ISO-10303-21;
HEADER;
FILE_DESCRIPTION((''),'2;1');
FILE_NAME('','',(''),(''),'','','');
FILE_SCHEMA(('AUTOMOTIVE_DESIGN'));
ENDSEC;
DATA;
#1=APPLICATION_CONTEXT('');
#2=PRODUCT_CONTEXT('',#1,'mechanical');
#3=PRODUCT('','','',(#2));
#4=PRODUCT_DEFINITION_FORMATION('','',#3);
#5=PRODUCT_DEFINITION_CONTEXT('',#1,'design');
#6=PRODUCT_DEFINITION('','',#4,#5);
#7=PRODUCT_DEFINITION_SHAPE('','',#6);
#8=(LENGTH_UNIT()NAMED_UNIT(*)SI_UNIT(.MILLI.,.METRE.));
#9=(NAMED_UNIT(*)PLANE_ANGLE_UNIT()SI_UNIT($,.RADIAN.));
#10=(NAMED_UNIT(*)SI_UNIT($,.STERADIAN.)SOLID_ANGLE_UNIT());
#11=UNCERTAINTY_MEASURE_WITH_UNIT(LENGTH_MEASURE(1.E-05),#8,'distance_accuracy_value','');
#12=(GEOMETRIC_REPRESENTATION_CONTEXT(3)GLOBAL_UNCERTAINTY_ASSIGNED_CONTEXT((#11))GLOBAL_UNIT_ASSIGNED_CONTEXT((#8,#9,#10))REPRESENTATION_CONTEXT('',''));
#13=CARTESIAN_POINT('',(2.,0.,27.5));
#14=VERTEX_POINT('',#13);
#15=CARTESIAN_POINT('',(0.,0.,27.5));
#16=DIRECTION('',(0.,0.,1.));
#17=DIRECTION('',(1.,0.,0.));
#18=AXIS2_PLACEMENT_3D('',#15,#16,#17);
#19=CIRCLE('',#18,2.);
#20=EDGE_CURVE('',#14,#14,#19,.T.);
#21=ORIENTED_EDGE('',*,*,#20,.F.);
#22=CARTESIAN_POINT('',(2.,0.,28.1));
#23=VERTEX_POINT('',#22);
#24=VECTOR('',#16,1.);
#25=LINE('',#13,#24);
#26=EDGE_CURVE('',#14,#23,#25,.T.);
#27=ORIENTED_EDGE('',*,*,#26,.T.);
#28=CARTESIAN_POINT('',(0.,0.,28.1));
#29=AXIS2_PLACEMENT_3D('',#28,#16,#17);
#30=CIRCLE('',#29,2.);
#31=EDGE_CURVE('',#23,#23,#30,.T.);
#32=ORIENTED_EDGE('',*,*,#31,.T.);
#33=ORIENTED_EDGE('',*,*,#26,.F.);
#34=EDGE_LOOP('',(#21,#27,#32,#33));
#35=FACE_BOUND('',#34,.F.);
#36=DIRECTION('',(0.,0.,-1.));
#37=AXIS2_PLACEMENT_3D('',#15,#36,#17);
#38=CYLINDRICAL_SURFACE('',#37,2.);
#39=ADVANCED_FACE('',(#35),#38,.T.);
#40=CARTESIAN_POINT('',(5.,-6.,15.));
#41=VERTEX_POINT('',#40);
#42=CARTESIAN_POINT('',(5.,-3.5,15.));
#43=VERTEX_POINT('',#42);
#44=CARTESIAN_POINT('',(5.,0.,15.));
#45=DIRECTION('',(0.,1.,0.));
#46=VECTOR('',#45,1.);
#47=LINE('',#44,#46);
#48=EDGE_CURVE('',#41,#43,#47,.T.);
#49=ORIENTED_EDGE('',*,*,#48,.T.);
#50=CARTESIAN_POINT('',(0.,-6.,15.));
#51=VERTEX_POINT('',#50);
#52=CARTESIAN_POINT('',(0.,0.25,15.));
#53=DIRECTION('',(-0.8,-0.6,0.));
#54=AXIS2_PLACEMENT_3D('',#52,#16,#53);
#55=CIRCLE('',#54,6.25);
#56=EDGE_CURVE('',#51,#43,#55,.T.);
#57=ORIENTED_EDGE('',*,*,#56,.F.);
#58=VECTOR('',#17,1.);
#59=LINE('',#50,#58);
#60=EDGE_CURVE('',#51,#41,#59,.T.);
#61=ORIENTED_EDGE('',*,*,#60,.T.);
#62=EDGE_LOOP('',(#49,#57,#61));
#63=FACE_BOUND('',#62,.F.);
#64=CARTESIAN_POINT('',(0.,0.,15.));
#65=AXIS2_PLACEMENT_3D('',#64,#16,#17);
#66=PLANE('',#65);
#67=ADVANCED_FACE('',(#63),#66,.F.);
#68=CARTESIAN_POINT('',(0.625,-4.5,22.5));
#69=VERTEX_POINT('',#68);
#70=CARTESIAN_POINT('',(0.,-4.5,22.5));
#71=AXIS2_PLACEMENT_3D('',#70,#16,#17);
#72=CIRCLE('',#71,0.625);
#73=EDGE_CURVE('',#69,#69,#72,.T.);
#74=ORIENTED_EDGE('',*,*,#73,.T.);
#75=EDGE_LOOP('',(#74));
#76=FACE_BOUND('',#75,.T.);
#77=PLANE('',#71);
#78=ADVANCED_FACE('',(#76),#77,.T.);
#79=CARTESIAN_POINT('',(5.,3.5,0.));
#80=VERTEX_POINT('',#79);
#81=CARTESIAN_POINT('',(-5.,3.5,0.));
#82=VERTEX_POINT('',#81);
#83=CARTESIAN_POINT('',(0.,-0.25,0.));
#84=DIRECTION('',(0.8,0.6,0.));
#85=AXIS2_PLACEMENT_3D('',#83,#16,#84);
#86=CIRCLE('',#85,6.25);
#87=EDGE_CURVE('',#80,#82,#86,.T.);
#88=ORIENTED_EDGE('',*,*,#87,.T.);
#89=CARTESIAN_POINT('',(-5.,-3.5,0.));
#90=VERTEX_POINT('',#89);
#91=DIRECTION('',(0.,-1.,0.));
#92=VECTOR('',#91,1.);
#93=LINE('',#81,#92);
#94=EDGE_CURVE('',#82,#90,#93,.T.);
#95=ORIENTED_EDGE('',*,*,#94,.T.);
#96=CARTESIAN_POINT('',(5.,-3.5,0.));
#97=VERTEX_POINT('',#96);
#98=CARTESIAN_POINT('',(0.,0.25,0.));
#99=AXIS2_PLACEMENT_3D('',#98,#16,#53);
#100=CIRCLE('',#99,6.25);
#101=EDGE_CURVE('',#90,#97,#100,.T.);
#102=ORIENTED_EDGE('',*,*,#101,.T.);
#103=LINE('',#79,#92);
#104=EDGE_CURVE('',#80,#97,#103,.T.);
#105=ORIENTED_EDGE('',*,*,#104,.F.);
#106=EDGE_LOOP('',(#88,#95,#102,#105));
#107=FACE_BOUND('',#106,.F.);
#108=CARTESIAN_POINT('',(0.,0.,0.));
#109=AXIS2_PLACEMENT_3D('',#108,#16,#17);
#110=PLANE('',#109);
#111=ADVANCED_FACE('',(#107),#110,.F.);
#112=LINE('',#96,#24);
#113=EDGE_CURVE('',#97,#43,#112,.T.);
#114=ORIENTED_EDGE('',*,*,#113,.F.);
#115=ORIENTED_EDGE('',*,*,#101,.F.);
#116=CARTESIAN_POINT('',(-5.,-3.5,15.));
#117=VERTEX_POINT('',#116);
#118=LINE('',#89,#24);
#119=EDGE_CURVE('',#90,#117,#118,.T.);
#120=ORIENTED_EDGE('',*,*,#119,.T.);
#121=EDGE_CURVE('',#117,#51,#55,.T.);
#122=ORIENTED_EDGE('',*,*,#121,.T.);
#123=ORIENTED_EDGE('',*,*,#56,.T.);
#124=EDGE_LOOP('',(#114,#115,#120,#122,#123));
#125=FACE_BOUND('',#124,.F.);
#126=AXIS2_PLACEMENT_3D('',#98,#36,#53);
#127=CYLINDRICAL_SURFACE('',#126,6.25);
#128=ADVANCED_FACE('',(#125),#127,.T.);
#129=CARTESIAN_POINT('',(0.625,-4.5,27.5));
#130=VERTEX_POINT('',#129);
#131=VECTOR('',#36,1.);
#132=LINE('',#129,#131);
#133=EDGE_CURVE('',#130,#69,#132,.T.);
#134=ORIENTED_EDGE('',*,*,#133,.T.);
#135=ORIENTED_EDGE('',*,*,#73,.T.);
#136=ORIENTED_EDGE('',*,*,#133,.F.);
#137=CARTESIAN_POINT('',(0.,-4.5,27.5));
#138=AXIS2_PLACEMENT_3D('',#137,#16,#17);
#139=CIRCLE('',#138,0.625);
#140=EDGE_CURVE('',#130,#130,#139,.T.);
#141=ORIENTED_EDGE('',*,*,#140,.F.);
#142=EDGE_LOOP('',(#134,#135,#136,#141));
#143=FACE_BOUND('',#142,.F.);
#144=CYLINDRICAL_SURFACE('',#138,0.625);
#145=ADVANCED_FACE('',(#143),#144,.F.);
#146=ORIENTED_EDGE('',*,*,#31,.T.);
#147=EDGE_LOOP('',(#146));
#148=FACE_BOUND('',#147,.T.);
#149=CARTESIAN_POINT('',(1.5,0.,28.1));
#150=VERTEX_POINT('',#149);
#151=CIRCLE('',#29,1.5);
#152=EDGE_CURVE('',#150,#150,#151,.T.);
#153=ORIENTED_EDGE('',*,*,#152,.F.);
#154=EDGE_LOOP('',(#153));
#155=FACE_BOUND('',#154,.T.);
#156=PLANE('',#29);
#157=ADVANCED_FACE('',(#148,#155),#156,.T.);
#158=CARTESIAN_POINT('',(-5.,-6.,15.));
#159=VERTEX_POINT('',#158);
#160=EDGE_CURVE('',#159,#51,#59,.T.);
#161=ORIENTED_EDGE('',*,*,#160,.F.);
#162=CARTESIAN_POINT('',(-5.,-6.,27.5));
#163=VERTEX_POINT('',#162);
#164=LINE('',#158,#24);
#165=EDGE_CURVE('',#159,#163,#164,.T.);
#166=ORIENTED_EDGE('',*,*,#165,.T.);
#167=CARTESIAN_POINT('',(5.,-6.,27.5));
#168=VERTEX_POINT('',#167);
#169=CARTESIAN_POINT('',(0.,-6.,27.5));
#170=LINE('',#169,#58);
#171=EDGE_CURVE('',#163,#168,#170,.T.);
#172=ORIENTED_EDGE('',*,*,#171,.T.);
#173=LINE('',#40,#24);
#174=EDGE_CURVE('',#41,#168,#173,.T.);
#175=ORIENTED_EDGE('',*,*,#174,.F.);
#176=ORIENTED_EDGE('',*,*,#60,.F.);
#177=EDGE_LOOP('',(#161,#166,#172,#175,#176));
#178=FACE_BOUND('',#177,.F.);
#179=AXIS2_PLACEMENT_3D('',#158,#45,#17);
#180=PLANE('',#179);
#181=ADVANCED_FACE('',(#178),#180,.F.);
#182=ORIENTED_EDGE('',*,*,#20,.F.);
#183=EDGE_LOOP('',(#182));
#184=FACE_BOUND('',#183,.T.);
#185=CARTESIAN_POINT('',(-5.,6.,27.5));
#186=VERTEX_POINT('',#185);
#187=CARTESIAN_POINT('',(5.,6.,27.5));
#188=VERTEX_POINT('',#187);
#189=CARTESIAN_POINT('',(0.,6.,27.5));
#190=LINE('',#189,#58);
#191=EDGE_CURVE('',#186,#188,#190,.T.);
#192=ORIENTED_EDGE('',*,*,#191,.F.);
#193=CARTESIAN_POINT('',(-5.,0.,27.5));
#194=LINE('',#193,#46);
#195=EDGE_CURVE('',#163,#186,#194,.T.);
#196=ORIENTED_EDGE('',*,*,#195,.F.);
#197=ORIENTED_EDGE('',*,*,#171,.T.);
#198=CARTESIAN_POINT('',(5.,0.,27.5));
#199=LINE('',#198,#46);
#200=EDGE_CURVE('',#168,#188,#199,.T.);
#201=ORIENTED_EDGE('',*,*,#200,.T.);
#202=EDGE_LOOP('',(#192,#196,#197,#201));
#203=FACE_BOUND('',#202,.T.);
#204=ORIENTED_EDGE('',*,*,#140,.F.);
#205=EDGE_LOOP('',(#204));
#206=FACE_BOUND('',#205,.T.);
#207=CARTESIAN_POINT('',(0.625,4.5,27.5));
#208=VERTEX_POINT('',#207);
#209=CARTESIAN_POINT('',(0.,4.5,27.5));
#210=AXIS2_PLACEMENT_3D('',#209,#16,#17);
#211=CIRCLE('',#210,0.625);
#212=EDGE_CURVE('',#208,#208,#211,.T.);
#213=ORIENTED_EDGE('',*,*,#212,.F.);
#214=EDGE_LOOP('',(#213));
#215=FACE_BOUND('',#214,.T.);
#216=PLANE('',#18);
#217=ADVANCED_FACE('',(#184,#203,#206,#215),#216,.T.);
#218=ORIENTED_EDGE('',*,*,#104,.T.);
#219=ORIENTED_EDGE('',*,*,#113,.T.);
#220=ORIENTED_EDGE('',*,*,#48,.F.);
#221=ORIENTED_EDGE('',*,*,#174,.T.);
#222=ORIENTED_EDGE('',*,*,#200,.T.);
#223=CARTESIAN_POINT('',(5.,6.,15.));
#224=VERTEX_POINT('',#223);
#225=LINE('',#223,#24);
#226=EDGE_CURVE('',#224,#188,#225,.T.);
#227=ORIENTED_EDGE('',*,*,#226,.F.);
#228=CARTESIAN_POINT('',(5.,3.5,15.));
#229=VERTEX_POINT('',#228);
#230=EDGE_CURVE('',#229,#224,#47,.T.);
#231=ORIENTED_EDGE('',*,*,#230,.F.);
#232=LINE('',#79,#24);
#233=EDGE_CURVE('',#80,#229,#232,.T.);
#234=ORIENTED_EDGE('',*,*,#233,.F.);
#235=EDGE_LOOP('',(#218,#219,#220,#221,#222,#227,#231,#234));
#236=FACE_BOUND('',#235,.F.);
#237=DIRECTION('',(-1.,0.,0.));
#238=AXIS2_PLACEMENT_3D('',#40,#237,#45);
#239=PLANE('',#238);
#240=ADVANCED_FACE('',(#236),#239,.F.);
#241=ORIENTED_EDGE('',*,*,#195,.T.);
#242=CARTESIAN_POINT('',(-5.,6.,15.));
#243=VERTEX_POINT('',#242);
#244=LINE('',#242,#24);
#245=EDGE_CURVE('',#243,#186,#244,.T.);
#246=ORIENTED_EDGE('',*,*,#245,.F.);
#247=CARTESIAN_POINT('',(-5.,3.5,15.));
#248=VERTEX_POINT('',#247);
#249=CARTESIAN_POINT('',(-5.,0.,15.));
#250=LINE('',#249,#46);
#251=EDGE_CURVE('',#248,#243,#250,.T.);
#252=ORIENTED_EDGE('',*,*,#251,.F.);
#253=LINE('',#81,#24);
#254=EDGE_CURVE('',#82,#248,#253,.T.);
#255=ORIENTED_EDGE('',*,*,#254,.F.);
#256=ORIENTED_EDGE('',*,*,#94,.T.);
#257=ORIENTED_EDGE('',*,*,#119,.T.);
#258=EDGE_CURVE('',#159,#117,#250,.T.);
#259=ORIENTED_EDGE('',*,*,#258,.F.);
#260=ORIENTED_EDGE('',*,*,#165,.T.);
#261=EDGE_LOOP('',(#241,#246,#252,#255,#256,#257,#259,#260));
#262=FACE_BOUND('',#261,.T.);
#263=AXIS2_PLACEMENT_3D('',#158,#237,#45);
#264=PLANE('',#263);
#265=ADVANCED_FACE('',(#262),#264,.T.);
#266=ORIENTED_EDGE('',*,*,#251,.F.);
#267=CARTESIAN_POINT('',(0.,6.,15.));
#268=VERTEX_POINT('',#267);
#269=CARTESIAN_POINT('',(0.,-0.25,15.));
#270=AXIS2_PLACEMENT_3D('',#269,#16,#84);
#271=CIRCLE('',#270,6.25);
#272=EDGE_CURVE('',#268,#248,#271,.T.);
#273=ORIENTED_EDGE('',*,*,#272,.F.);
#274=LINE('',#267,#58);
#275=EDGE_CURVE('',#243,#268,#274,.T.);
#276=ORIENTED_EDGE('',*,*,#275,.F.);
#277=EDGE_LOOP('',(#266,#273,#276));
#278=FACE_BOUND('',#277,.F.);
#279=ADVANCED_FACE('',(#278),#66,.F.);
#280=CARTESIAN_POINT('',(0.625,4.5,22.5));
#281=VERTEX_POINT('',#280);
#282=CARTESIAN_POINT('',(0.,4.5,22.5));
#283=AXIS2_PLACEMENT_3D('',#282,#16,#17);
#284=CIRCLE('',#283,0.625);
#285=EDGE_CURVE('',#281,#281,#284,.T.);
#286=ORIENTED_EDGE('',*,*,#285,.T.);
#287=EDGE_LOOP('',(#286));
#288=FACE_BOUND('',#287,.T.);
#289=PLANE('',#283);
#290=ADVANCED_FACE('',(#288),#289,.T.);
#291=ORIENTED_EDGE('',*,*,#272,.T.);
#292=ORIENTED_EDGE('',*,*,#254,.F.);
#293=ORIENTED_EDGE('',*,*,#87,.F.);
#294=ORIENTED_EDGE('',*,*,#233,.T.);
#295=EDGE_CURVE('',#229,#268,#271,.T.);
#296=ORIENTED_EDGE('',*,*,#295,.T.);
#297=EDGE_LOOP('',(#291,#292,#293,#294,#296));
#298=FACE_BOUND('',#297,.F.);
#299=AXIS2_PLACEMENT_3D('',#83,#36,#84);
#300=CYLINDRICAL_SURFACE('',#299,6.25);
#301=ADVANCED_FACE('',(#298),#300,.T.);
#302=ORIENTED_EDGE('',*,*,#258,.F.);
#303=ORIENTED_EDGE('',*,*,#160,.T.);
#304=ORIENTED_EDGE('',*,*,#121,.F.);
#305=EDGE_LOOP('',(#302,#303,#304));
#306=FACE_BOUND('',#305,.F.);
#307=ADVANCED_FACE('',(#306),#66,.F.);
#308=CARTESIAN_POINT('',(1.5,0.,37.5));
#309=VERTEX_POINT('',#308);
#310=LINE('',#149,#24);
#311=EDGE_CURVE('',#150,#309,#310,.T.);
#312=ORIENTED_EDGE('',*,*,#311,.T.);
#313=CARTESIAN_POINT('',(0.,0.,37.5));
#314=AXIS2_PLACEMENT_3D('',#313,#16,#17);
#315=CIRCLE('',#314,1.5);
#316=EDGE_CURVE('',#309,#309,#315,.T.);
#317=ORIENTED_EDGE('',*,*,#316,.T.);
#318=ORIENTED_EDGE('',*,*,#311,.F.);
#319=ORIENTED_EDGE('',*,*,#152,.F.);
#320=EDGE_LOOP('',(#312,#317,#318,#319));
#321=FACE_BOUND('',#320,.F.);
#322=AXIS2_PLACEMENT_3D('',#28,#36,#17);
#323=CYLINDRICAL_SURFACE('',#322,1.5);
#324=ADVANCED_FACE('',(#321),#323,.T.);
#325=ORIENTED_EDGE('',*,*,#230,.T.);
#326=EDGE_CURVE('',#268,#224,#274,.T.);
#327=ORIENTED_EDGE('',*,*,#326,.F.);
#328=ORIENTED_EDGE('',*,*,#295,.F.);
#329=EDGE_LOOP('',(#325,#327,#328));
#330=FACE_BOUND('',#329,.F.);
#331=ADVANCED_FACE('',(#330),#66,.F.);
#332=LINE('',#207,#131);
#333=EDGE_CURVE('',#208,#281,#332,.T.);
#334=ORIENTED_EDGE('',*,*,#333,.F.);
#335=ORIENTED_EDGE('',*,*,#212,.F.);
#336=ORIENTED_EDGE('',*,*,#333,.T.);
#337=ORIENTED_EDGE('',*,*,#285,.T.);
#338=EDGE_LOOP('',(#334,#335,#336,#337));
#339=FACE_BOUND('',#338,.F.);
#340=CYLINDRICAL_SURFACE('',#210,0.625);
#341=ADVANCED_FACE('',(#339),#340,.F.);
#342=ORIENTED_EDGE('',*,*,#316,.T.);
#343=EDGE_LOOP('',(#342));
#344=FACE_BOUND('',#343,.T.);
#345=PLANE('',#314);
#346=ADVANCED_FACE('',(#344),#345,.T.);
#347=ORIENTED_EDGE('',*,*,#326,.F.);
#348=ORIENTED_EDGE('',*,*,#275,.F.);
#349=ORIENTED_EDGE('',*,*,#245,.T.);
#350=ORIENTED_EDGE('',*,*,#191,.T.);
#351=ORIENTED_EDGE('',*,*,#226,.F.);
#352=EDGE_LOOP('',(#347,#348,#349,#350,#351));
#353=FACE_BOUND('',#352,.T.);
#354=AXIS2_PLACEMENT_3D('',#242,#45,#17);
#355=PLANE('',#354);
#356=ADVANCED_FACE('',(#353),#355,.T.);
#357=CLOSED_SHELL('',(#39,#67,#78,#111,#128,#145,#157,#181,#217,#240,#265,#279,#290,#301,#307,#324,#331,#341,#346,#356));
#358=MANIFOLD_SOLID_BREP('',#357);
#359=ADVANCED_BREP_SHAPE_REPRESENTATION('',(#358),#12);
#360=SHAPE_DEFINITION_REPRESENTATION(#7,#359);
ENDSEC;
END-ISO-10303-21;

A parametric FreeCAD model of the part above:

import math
import FreeCAD as App
import Part
import Sketcher

doc = App.newDocument("Part")
params = doc.addObject("Spreadsheet::Sheet", "Params")
for row, (alias, value) in enumerate([
    ("sketch1_height", "7 mm"),
    ("sketch1_radius", "6.25 mm"),
    ("pad1_length", "15 mm"),
    ("sketch2_width", "10 mm"),
    ("sketch2_height", "12 mm"),
    ("pad2_length", "12.5 mm"),
    ("sketch3_diameter", "1.25 mm"),
    ("pocket1_length", "5 mm"),
    ("sketch4_diameter", "4 mm"),
    ("pad3_length", "0.6 mm"),
    ("sketch5_diameter", "3 mm"),
    ("pad4_length", "9.4 mm"),
], start=1):
    params.set(f"A{row}", alias)
    params.set(f"B{row}", "=" + value)
    params.setAlias(f"B{row}", alias)

body = doc.addObject("PartDesign::Body", "Body")

# Sketch on XY plane
sketch1 = doc.addObject("Sketcher::SketchObject", "Sketch")
body.addObject(sketch1)
sketch1.AttachmentSupport = (doc.XY_Plane, [""])
sketch1.MapMode = "FlatFace"
sketch1.addGeometry(Part.LineSegment(App.Vector(-5, 4, 0), App.Vector(-5, -4, 0)), False)
sketch1.addGeometry(Part.ArcOfCircle(Part.Circle(App.Vector(0, 0, 0), App.Vector(0, 0, 1), 6), math.radians(-143), math.radians(-37)), False)
sketch1.addGeometry(Part.LineSegment(App.Vector(5, -4, 0), App.Vector(5, 4, 0)), False)
sketch1.addGeometry(Part.ArcOfCircle(Part.Circle(App.Vector(0, 0, 0), App.Vector(0, 0, 1), 6), math.radians(37), math.radians(143)), False)
sketch1.addConstraint(Sketcher.Constraint("Coincident", 0, 2, 1, 1))
sketch1.addConstraint(Sketcher.Constraint("Coincident", 1, 2, 2, 1))
sketch1.addConstraint(Sketcher.Constraint("Coincident", 2, 2, 3, 1))
sketch1.addConstraint(Sketcher.Constraint("Coincident", 3, 2, 0, 1))
sketch1.addConstraint(Sketcher.Constraint("Vertical", 0))
sketch1.addConstraint(Sketcher.Constraint("Vertical", 2))
sketch1.addConstraint(Sketcher.Constraint("Equal", 1, 3))
sketch1.addConstraint(Sketcher.Constraint("Symmetric", 1, 3, 3, 3, -1, 1))
sketch1.addConstraint(Sketcher.Constraint("Symmetric", 0, 2, 1, 2, -2))
sketch1.addConstraint(Sketcher.Constraint("DistanceY", 0, 2, 0, 1, 7.0))
sketch1.addConstraint(Sketcher.Constraint("Radius", 1, 6.25))
sketch1.addConstraint(Sketcher.Constraint("DistanceX", 0, 2, -1, 1, 5.0))
sketch1.setExpression("Constraints[9]", "Params.sketch1_height")
sketch1.setExpression("Constraints[10]", "Params.sketch1_radius")
pad1 = doc.addObject("PartDesign::Pad", "Pad")
body.addObject(pad1)
pad1.Profile = sketch1
pad1.setExpression("Length", "Params.pad1_length")

# Sketch on XY plane
sketch2 = doc.addObject("Sketcher::SketchObject", "Sketch001")
body.addObject(sketch2)
sketch2.AttachmentSupport = (doc.XY_Plane, [""])
sketch2.MapMode = "FlatFace"
sketch2.AttachmentOffset = App.Placement(App.Vector(0, 0, 15), App.Rotation())
sketch2.addGeometry(Part.LineSegment(App.Vector(-5, 6, 0), App.Vector(-5, -6, 0)), False)
sketch2.addGeometry(Part.LineSegment(App.Vector(-5, -6, 0), App.Vector(5, -6, 0)), False)
sketch2.addGeometry(Part.LineSegment(App.Vector(5, -6, 0), App.Vector(5, 6, 0)), False)
sketch2.addGeometry(Part.LineSegment(App.Vector(5, 6, 0), App.Vector(-5, 6, 0)), False)
sketch2.addConstraint(Sketcher.Constraint("Coincident", 0, 2, 1, 1))
sketch2.addConstraint(Sketcher.Constraint("Coincident", 1, 2, 2, 1))
sketch2.addConstraint(Sketcher.Constraint("Coincident", 2, 2, 3, 1))
sketch2.addConstraint(Sketcher.Constraint("Coincident", 3, 2, 0, 1))
sketch2.addConstraint(Sketcher.Constraint("Vertical", 0))
sketch2.addConstraint(Sketcher.Constraint("Horizontal", 1))
sketch2.addConstraint(Sketcher.Constraint("Vertical", 2))
sketch2.addConstraint(Sketcher.Constraint("Horizontal", 3))
sketch2.addConstraint(Sketcher.Constraint("Symmetric", 0, 2, 2, 2, -1, 1))
sketch2.addConstraint(Sketcher.Constraint("DistanceX", 1, 1, 1, 2, 10.0))
sketch2.addConstraint(Sketcher.Constraint("DistanceY", 0, 2, 0, 1, 12.0))
sketch2.setExpression("Constraints[9]", "Params.sketch2_width")
sketch2.setExpression("Constraints[10]", "Params.sketch2_height")
pad2 = doc.addObject("PartDesign::Pad", "Pad001")
body.addObject(pad2)
pad2.Profile = sketch2
pad2.setExpression("Length", "Params.pad2_length")

# Sketch on XY plane
sketch3 = doc.addObject("Sketcher::SketchObject", "Sketch002")
body.addObject(sketch3)
sketch3.AttachmentSupport = (doc.XY_Plane, [""])
sketch3.MapMode = "FlatFace"
sketch3.AttachmentOffset = App.Placement(App.Vector(0, 0, 27.5), App.Rotation())
sketch3.addGeometry(Part.Circle(App.Vector(0, -4.5, 0), App.Vector(0, 0, 1), 0.6), False)
sketch3.addGeometry(Part.Circle(App.Vector(0, 4.5, 0), App.Vector(0, 0, 1), 0.6), False)
sketch3.addConstraint(Sketcher.Constraint("Equal", 0, 1))
sketch3.addConstraint(Sketcher.Constraint("Symmetric", 0, 3, 1, 3, -1, 1))
sketch3.addConstraint(Sketcher.Constraint("PointOnObject", 0, 3, -2))
sketch3.addConstraint(Sketcher.Constraint("Diameter", 0, 1.25))
sketch3.addConstraint(Sketcher.Constraint("DistanceY", 0, 3, 1, 3, 9.0))
sketch3.setExpression("Constraints[3]", "Params.sketch3_diameter")
pocket1 = doc.addObject("PartDesign::Pocket", "Pocket")
body.addObject(pocket1)
pocket1.Profile = sketch3
pocket1.setExpression("Length", "Params.pocket1_length")

# Sketch on XY plane
sketch4 = doc.addObject("Sketcher::SketchObject", "Sketch003")
body.addObject(sketch4)
sketch4.AttachmentSupport = (doc.XY_Plane, [""])
sketch4.MapMode = "FlatFace"
sketch4.AttachmentOffset = App.Placement(App.Vector(0, 0, 27.5), App.Rotation())
sketch4.addGeometry(Part.Circle(App.Vector(0, 0, 0), App.Vector(0, 0, 1), 2), False)
sketch4.addConstraint(Sketcher.Constraint("Coincident", 0, 3, -1, 1))
sketch4.addConstraint(Sketcher.Constraint("Diameter", 0, 4.0))
sketch4.setExpression("Constraints[1]", "Params.sketch4_diameter")
pad3 = doc.addObject("PartDesign::Pad", "Pad002")
body.addObject(pad3)
pad3.Profile = sketch4
pad3.setExpression("Length", "Params.pad3_length")

# Sketch on XY plane
sketch5 = doc.addObject("Sketcher::SketchObject", "Sketch004")
body.addObject(sketch5)
sketch5.AttachmentSupport = (doc.XY_Plane, [""])
sketch5.MapMode = "FlatFace"
sketch5.AttachmentOffset = App.Placement(App.Vector(0, 0, 28.1), App.Rotation())
sketch5.addGeometry(Part.Circle(App.Vector(0, 0, 0), App.Vector(0, 0, 1), 1.5), False)
sketch5.addConstraint(Sketcher.Constraint("Coincident", 0, 3, -1, 1))
sketch5.addConstraint(Sketcher.Constraint("Diameter", 0, 3.0))
sketch5.setExpression("Constraints[1]", "Params.sketch5_diameter")
pad4 = doc.addObject("PartDesign::Pad", "Pad003")
body.addObject(pad4)
pad4.Profile = sketch5
pad4.setExpression("Length", "Params.pad4_length")

doc.recompute()
